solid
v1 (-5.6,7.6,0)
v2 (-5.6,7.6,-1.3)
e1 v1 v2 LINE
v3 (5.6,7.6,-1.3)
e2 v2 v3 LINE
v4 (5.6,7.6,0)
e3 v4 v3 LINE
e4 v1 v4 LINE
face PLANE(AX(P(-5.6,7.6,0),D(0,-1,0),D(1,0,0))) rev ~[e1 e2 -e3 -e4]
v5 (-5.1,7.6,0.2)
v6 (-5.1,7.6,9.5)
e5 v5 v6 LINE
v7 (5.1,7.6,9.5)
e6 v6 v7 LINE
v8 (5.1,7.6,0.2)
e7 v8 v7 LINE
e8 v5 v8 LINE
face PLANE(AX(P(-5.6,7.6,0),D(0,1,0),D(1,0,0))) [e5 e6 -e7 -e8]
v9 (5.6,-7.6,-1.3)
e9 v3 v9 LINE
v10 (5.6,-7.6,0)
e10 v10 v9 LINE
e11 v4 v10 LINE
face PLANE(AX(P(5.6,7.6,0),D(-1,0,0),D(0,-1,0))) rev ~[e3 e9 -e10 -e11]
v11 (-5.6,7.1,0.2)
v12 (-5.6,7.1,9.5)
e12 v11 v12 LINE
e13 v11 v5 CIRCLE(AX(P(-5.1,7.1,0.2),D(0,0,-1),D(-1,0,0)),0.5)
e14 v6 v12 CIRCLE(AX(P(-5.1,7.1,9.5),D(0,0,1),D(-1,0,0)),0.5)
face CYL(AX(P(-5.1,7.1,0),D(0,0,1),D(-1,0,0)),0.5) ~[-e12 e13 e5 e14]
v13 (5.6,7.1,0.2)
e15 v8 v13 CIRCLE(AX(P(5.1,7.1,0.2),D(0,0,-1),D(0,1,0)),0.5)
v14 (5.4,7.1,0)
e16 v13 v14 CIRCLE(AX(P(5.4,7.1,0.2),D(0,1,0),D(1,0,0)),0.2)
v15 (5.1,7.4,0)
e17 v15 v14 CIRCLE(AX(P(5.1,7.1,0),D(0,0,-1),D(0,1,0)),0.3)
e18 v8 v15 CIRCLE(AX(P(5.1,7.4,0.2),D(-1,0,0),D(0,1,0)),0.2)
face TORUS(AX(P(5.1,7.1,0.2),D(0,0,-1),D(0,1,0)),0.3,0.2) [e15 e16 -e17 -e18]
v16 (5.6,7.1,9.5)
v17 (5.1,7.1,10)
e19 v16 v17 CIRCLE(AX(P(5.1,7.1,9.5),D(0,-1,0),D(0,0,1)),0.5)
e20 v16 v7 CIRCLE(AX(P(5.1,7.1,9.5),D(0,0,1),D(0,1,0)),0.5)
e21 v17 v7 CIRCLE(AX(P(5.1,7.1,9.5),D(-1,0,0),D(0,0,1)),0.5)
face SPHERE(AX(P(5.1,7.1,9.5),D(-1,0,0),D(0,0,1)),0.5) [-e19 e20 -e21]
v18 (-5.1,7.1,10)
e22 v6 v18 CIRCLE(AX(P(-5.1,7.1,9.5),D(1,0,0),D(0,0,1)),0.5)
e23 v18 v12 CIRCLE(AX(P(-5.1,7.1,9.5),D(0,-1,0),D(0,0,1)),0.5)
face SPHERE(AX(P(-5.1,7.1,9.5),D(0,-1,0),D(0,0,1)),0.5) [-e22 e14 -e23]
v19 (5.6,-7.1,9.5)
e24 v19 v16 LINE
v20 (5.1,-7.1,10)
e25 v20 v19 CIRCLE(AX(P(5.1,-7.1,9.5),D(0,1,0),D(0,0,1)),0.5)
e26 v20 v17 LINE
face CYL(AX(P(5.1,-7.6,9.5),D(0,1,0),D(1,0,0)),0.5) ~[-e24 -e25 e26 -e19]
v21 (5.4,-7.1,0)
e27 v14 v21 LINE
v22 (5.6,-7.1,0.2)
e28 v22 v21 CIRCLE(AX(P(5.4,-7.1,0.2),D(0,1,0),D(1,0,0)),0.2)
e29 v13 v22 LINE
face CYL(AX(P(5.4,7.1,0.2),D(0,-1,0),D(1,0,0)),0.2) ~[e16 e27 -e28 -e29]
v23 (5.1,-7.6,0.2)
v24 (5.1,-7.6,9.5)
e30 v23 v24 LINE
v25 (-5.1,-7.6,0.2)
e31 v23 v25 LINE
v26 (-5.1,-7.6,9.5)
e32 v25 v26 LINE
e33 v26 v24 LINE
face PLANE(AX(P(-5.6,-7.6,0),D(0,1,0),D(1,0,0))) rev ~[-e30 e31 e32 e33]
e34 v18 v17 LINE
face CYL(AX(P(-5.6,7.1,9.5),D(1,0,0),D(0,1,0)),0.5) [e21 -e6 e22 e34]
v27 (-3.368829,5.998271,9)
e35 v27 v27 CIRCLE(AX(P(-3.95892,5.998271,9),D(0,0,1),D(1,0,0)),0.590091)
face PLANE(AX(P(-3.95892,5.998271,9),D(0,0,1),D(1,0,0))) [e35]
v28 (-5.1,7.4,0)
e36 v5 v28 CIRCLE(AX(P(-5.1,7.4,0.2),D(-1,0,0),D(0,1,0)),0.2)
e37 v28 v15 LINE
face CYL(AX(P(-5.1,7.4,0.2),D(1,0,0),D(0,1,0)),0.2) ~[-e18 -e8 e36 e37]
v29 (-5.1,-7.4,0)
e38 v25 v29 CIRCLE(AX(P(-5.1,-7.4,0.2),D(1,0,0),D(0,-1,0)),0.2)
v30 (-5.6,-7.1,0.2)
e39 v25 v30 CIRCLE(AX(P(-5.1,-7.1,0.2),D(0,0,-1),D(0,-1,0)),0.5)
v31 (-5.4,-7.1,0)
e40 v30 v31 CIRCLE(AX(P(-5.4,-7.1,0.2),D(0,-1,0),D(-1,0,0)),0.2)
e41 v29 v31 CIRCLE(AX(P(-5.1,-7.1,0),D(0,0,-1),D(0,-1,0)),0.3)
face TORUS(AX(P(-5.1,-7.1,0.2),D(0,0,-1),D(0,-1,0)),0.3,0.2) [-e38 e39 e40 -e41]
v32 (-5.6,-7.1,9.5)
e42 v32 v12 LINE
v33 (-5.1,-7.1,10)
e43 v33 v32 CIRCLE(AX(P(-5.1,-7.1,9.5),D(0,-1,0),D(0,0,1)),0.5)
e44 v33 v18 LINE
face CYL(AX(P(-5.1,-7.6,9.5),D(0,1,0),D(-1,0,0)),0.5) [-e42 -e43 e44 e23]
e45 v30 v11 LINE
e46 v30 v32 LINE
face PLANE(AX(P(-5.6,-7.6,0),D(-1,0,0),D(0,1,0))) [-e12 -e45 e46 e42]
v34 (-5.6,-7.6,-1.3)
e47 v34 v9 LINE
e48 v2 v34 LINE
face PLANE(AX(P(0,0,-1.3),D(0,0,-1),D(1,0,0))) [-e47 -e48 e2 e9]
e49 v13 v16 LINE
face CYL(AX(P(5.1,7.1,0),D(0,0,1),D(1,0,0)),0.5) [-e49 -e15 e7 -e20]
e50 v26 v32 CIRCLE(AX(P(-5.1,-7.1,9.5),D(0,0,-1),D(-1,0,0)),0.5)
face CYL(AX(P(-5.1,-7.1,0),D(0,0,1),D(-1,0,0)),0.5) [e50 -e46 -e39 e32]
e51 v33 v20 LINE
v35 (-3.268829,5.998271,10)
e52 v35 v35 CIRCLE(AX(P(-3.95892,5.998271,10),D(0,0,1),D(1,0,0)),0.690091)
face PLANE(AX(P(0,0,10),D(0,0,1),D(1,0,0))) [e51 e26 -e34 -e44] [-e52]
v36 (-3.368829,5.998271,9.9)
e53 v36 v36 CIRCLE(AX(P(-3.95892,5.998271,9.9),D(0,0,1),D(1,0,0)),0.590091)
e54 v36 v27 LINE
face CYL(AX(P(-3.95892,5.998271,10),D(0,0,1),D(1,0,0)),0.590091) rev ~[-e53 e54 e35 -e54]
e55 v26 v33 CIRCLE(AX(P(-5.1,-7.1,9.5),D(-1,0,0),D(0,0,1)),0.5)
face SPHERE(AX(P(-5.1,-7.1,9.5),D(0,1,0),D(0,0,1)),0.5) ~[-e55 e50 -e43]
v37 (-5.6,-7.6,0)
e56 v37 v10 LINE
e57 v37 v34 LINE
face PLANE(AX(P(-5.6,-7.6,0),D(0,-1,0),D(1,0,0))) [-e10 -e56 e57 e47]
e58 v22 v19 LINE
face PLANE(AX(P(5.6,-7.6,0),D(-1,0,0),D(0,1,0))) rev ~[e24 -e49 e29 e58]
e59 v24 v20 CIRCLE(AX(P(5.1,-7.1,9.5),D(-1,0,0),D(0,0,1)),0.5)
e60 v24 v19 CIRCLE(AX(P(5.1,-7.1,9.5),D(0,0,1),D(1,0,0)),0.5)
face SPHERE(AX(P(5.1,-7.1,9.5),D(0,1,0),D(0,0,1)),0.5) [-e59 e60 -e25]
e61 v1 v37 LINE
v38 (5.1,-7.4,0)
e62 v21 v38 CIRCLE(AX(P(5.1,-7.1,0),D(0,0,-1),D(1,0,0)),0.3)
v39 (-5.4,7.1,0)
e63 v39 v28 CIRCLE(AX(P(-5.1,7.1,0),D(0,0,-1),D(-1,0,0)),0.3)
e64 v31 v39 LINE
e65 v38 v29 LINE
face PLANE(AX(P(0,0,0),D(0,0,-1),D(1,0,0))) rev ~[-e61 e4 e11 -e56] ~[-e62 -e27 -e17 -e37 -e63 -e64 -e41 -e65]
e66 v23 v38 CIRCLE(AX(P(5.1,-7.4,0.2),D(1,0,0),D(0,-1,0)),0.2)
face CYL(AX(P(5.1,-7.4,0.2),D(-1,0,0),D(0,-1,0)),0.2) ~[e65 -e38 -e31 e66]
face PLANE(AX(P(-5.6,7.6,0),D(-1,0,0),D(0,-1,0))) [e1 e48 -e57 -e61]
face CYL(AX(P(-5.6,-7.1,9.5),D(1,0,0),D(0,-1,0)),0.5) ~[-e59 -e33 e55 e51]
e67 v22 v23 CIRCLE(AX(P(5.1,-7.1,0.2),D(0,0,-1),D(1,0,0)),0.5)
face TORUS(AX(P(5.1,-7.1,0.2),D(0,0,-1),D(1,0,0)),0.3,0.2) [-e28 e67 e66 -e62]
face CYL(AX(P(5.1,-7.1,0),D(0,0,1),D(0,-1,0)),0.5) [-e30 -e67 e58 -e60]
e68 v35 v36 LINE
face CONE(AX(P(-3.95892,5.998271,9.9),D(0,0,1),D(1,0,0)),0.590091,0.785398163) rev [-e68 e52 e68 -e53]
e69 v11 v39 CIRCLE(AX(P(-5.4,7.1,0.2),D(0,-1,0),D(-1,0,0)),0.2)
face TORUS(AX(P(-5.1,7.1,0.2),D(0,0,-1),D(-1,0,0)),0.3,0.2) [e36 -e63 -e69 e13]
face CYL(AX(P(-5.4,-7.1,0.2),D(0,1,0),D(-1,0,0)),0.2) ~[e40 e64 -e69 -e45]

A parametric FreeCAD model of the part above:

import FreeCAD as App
import Part
import Sketcher
from FreeCAD import Vector


def edges_at(feature, points):
    """Names of the edges that pass closest to the given points."""
    edges = feature.Shape.Edges
    near = lambda p: min(range(len(edges)), key=lambda i: edges[i].distToShape(Part.Vertex(*p))[0])
    return sorted({f"Edge{near(p) + 1}" for p in points})


def add_polygon(sketch, points):
    """Adds a closed chain of lines whose ends are joined by coincident constraints."""
    first, n = sketch.GeometryCount, len(points)
    for a, b in zip(points, points[1:] + points[:1]):
        sketch.addGeometry(Part.LineSegment(App.Vector(*a, 0), App.Vector(*b, 0)), False)
    for i in range(n):
        sketch.addConstraint(Sketcher.Constraint("Coincident", first + i, 2, first + (i + 1) % n, 1))

doc = App.newDocument("Part")
body = doc.addObject("PartDesign::Body", "Body")

sketch1 = body.newObject("Sketcher::SketchObject", "Sketch")
sketch1.AttachmentSupport = (doc.getObject("XY_Plane"), [""])
sketch1.MapMode = "FlatFace"
add_polygon(sketch1, [(-6, 8), (-6, -8), (6, -8), (6, 8)])
sketch1.addConstraint([
    Sketcher.Constraint("Vertical", 0),
    Sketcher.Constraint("Horizontal", 1),
    Sketcher.Constraint("Vertical", 2),
    Sketcher.Constraint("Horizontal", 3),
    Sketcher.Constraint("Symmetric", 0, 2, 2, 2, -1, 1),
    Sketcher.Constraint("DistanceX", 1, 1, 1, 2, 11.2),
    Sketcher.Constraint("DistanceY", 0, 2, 0, 1, 15.2),
])
pad1 = body.newObject("PartDesign::Pad", "Pad")
pad1.Profile = sketch1
pad1.Length = 10
doc.recompute()

fillet = body.newObject("PartDesign::Fillet", "Fillet")
fillet.Base = (pad1, edges_at(pad1, [
    (-5.6, 0, 10),
    (0, 7.6, 10),
    (5.6, 0, 10),
    (0, -7.6, 10),
    (5.6, -7.6, 5),
    (5.6, 7.6, 5),
    (-5.6, 7.6, 5),
    (-5.6, -7.6, 5),
]))
fillet.Radius = 0.5
doc.recompute()

fillet2 = body.newObject("PartDesign::Fillet", "Fillet001")
fillet2.Base = (fillet, edges_at(fillet, [
    (-5.6, 0, 0),
    (-5.454, -7.454, 0),
    (-5.454, 7.454, 0),
    (0, -7.6, 0),
    (0, 7.6, 0),
    (5.454, -7.454, 0),
    (5.454, 7.454, 0),
    (5.6, 0, 0),
]))
fillet2.Radius = 0.2

sketch2 = body.newObject("Sketcher::SketchObject", "Sketch001")
sketch2.AttachmentSupport = (doc.getObject("XY_Plane"), [""])
sketch2.MapMode = "FlatFace"
sketch2.AttachmentOffset = App.Placement(Vector(0, 0, 10), App.Rotation())
sketch2.addGeometry(Part.Circle(Vector(-4, 6, 0), Vector(0, 0, 1), 0.6), False)
sketch2.addConstraint([
    Sketcher.Constraint("Diameter", 0, 1.180182),
    Sketcher.Constraint("DistanceX", 0, 3, -1, 1, 3.95892),
    Sketcher.Constraint("DistanceY", -1, 1, 0, 3, 5.998271),
])
pocket1 = body.newObject("PartDesign::Pocket", "Pocket")
pocket1.Profile = sketch2
pocket1.Length = 1

sketch3 = body.newObject("Sketcher::SketchObject", "Sketch002")
sketch3.AttachmentSupport = (doc.getObject("XY_Plane"), [""])
sketch3.MapMode = "FlatFace"
add_polygon(sketch3, [(-6, -8), (-6, 8), (6, 8), (6, -8)])
sketch3.addConstraint([
    Sketcher.Constraint("Vertical", 0),
    Sketcher.Constraint("Horizontal", 1),
    Sketcher.Constraint("Vertical", 2),
    Sketcher.Constraint("Horizontal", 3),
    Sketcher.Constraint("Symmetric", 0, 2, 2, 2, -1, 1),
    Sketcher.Constraint("DistanceX", 1, 1, 1, 2, 11.2),
    Sketcher.Constraint("DistanceY", 0, 1, 0, 2, 15.2),
])
pad2 = body.newObject("PartDesign::Pad", "Pad001")
pad2.Profile = sketch3
pad2.Length = 1.3
pad2.Reversed = True
doc.recompute()

chamfer = body.newObject("PartDesign::Chamfer", "Chamfer")
chamfer.Base = (pad2, edges_at(pad2, [(-4.549, 5.998, 10)]))
chamfer.Size = 0.1

doc.recompute()
